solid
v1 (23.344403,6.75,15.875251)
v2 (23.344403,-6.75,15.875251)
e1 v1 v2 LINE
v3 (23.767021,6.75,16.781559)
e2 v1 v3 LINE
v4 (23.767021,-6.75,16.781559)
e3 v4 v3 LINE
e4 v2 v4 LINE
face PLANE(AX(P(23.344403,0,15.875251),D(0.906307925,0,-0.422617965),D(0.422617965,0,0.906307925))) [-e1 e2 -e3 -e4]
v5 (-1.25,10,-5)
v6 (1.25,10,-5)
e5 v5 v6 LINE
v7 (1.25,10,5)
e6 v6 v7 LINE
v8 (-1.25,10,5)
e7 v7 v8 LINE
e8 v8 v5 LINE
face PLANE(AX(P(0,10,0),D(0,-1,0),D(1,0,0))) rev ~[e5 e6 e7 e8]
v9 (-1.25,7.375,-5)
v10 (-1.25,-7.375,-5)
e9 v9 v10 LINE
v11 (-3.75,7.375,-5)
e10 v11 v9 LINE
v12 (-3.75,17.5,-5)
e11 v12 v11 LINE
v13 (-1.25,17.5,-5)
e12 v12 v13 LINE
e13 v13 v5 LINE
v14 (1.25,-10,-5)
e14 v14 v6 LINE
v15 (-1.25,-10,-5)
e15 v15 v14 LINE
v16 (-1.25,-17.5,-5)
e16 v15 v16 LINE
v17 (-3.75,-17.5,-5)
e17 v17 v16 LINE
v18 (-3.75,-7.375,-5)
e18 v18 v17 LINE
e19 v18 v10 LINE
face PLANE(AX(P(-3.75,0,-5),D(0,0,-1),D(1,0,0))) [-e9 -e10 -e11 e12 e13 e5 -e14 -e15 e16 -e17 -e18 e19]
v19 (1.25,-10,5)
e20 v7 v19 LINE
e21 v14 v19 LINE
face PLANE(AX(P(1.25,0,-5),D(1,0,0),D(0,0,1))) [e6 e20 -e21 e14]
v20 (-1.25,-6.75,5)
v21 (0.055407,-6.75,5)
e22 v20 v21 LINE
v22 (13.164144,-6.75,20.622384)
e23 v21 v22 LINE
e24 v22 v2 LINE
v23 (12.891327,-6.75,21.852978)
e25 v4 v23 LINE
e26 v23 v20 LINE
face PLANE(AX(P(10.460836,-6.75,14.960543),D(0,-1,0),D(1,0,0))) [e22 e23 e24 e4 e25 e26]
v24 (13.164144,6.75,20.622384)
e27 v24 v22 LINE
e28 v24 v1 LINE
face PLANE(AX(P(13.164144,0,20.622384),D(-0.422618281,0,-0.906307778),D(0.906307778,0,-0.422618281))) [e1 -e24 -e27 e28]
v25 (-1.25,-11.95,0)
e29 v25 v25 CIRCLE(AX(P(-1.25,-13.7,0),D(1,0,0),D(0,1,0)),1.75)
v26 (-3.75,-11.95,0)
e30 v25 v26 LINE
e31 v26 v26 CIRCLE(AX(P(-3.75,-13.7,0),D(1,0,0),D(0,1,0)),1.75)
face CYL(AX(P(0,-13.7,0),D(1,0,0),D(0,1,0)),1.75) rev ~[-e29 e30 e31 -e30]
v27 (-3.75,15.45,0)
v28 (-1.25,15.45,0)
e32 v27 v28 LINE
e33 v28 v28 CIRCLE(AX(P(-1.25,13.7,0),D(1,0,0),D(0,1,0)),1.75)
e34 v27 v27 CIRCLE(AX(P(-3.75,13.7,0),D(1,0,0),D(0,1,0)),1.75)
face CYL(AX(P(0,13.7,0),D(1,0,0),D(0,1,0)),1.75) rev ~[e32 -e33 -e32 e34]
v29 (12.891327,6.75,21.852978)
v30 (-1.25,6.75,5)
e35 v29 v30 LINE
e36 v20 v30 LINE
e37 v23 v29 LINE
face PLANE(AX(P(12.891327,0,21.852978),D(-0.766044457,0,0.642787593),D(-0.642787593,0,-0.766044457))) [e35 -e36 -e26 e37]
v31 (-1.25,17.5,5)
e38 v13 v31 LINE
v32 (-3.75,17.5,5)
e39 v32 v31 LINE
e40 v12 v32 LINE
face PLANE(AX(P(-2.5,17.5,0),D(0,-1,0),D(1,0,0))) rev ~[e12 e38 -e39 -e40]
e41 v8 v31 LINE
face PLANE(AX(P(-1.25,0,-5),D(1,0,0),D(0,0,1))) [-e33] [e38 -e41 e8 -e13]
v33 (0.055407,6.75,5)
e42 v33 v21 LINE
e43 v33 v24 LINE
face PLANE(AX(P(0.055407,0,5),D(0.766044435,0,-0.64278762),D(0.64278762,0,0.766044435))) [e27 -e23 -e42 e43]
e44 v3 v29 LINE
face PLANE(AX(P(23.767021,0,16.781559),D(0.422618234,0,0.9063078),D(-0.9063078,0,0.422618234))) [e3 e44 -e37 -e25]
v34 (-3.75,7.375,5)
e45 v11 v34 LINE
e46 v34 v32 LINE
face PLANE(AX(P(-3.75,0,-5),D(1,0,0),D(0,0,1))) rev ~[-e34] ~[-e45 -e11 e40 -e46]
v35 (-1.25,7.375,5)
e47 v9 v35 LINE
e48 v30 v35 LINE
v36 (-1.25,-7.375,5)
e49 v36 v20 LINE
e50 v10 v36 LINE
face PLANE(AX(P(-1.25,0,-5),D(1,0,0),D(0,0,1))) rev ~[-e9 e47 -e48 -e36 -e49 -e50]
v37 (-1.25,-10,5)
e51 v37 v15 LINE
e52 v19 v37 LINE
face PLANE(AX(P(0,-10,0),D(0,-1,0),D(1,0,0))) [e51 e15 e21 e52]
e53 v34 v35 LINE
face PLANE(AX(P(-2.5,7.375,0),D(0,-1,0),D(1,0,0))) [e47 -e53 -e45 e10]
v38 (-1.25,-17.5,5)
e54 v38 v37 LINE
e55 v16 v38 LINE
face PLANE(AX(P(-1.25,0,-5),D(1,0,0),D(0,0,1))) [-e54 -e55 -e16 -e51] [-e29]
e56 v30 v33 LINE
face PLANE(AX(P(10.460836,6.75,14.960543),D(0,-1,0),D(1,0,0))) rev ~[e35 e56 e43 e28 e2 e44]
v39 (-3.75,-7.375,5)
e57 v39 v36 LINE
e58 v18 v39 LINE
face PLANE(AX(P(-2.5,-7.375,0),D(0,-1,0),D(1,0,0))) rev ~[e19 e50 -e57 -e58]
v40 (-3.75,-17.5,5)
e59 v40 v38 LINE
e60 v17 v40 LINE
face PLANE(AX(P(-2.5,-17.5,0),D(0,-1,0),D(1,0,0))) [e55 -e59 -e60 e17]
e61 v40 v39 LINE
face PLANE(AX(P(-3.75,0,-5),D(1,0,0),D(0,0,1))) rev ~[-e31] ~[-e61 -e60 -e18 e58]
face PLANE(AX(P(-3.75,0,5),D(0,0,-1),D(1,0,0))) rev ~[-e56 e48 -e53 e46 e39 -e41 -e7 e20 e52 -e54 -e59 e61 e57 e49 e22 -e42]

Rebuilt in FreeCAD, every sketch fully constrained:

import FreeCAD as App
import Part
import Sketcher

V = App.Vector
Q = App.Units.Quantity


def add_polygon(sketch, points):
    """Adds a closed chain of lines whose ends are joined by coincident constraints."""
    first, n = sketch.GeometryCount, len(points)
    for a, b in zip(points, points[1:] + points[:1]):
        sketch.addGeometry(Part.LineSegment(App.Vector(*a, 0), App.Vector(*b, 0)), False)
    for i in range(n):
        sketch.addConstraint(Sketcher.Constraint("Coincident", first + i, 2, first + (i + 1) % n, 1))

doc = App.newDocument("Part")
body = doc.addObject("PartDesign::Body", "Body")

sketch1 = doc.addObject("Sketcher::SketchObject", "Sketch")
body.addObject(sketch1)
sketch1.AttachmentSupport = (doc.XZ_Plane, [""])
sketch1.MapMode = "FlatFace"
add_polygon(sketch1, [(1.25, -5), (1.25, 5), (-1.25, 5), (-1.25, -5)])
sketch1.addConstraint([
    Sketcher.Constraint("Vertical", 0),
    Sketcher.Constraint("Horizontal", 1),
    Sketcher.Constraint("Vertical", 2),
    Sketcher.Constraint("Horizontal", 3),
    Sketcher.Constraint("Symmetric", 0, 2, 2, 2, -1, 1),
    Sketcher.Constraint("DistanceY", 0, 1, 0, 2, Q("10 mm")),
    Sketcher.Constraint("DistanceX", 1, 2, 1, 1, Q("2.5 mm")),
])
pad1 = doc.addObject("PartDesign::Pad", "Pad")
body.addObject(pad1)
pad1.Profile = sketch1
pad1.Length = 20
pad1.Midplane = True

sketch2 = doc.addObject("Sketcher::SketchObject", "Sketch001")
body.addObject(sketch2)
sketch2.AttachmentSupport = (doc.XZ_Plane, [""])
sketch2.MapMode = "FlatFace"
add_polygon(sketch2, [(-1.25, 5), (0.055407, 5), (13.164144, 20.622384), (23.344403, 15.875251), (23.767021, 16.781559), (12.891327, 21.852978)])
sketch2.addConstraint([
    Sketcher.Constraint("Horizontal", 0),
    Sketcher.Constraint("Perpendicular", 2, 3),
    Sketcher.Constraint("Perpendicular", 3, 4),
    Sketcher.Constraint("Parallel", 1, 5),
    Sketcher.Constraint("Angle", 1, Q("49.999999 deg")),
    Sketcher.Constraint("Angle", 2, Q("-25.000001 deg")),
    Sketcher.Constraint("Distance", 3, Q("1 mm")),
    Sketcher.Constraint("Distance", 4, Q("12 mm")),
    Sketcher.Constraint("Distance", 5, Q("22 mm")),
    Sketcher.Constraint("DistanceY", -1, 1, 0, 2, Q("5 mm")),
    Sketcher.Constraint("DistanceX", 5, 2, -1, 1, Q("1.25 mm")),
    Sketcher.Constraint("DistanceX", 0, 1, 0, 2, Q("1.305407 mm")),
])
pad2 = doc.addObject("PartDesign::Pad", "Pad001")
body.addObject(pad2)
pad2.Profile = sketch2
pad2.Length = 13.5
pad2.Midplane = True

sketch3 = doc.addObject("Sketcher::SketchObject", "Sketch002")
body.addObject(sketch3)
sketch3.AttachmentSupport = (doc.XZ_Plane, [""])
sketch3.MapMode = "FlatFace"
add_polygon(sketch3, [(-3.75, 5), (-3.75, -5), (-1.25, -5), (-1.25, 5)])
sketch3.addConstraint([
    Sketcher.Constraint("Vertical", 0),
    Sketcher.Constraint("Horizontal", 1),
    Sketcher.Constraint("Vertical", 2),
    Sketcher.Constraint("Horizontal", 3),
    Sketcher.Constraint("DistanceY", 0, 2, 0, 1, Q("10 mm")),
    Sketcher.Constraint("DistanceX", 1, 1, 1, 2, Q("2.5 mm")),
    Sketcher.Constraint("DistanceY", 0, 2, -1, 1, Q("5 mm")),
    Sketcher.Constraint("DistanceX", 0, 2, -1, 1, Q("3.75 mm")),
])
pad3 = doc.addObject("PartDesign::Pad", "Pad002")
body.addObject(pad3)
pad3.Profile = sketch3
pad3.Length = 35
pad3.Midplane = True

sketch4 = doc.addObject("Sketcher::SketchObject", "Sketch003")
body.addObject(sketch4)
sketch4.AttachmentSupport = (doc.XZ_Plane, [""])
sketch4.MapMode = "FlatFace"
add_polygon(sketch4, [(-3.75, 5), (-3.75, -5), (-1.25, -5), (-1.25, 5)])
sketch4.addConstraint([
    Sketcher.Constraint("Vertical", 0),
    Sketcher.Constraint("Horizontal", 1),
    Sketcher.Constraint("Vertical", 2),
    Sketcher.Constraint("Horizontal", 3),
    Sketcher.Constraint("DistanceY", 0, 2, 0, 1, Q("10 mm")),
    Sketcher.Constraint("DistanceX", 1, 1, 1, 2, Q("2.5 mm")),
    Sketcher.Constraint("DistanceY", 0, 2, -1, 1, Q("5 mm")),
    Sketcher.Constraint("DistanceX", 0, 2, -1, 1, Q("3.75 mm")),
])
pocket1 = doc.addObject("PartDesign::Pocket", "Pocket")
body.addObject(pocket1)
pocket1.Profile = sketch4
pocket1.Length = 14.75
pocket1.Midplane = True

sketch5 = doc.addObject("Sketcher::SketchObject", "Sketch004")
body.addObject(sketch5)
sketch5.AttachmentSupport = (doc.YZ_Plane, [""])
sketch5.MapMode = "FlatFace"
sketch5.addGeometry([
    Part.Circle(V(-13.7, 0, 0), V(0, 0, 1), 1.75),
    Part.Circle(V(13.7, 0, 0), V(0, 0, 1), 1.75),
], False)
sketch5.addConstraint([
    Sketcher.Constraint("Equal", 0, 1),
    Sketcher.Constraint("Symmetric", 0, 3, 1, 3, -1, 1),
    Sketcher.Constraint("PointOnObject", 0, 3, -1),
    Sketcher.Constraint("Diameter", 0, Q("3.5 mm")),
    Sketcher.Constraint("DistanceX", 0, 3, -1, 1, Q("13.7 mm")),
])
pocket2 = doc.addObject("PartDesign::Pocket", "Pocket001")
body.addObject(pocket2)
pocket2.Profile = sketch5
pocket2.Length = 10
pocket2.Midplane = True

doc.recompute()
